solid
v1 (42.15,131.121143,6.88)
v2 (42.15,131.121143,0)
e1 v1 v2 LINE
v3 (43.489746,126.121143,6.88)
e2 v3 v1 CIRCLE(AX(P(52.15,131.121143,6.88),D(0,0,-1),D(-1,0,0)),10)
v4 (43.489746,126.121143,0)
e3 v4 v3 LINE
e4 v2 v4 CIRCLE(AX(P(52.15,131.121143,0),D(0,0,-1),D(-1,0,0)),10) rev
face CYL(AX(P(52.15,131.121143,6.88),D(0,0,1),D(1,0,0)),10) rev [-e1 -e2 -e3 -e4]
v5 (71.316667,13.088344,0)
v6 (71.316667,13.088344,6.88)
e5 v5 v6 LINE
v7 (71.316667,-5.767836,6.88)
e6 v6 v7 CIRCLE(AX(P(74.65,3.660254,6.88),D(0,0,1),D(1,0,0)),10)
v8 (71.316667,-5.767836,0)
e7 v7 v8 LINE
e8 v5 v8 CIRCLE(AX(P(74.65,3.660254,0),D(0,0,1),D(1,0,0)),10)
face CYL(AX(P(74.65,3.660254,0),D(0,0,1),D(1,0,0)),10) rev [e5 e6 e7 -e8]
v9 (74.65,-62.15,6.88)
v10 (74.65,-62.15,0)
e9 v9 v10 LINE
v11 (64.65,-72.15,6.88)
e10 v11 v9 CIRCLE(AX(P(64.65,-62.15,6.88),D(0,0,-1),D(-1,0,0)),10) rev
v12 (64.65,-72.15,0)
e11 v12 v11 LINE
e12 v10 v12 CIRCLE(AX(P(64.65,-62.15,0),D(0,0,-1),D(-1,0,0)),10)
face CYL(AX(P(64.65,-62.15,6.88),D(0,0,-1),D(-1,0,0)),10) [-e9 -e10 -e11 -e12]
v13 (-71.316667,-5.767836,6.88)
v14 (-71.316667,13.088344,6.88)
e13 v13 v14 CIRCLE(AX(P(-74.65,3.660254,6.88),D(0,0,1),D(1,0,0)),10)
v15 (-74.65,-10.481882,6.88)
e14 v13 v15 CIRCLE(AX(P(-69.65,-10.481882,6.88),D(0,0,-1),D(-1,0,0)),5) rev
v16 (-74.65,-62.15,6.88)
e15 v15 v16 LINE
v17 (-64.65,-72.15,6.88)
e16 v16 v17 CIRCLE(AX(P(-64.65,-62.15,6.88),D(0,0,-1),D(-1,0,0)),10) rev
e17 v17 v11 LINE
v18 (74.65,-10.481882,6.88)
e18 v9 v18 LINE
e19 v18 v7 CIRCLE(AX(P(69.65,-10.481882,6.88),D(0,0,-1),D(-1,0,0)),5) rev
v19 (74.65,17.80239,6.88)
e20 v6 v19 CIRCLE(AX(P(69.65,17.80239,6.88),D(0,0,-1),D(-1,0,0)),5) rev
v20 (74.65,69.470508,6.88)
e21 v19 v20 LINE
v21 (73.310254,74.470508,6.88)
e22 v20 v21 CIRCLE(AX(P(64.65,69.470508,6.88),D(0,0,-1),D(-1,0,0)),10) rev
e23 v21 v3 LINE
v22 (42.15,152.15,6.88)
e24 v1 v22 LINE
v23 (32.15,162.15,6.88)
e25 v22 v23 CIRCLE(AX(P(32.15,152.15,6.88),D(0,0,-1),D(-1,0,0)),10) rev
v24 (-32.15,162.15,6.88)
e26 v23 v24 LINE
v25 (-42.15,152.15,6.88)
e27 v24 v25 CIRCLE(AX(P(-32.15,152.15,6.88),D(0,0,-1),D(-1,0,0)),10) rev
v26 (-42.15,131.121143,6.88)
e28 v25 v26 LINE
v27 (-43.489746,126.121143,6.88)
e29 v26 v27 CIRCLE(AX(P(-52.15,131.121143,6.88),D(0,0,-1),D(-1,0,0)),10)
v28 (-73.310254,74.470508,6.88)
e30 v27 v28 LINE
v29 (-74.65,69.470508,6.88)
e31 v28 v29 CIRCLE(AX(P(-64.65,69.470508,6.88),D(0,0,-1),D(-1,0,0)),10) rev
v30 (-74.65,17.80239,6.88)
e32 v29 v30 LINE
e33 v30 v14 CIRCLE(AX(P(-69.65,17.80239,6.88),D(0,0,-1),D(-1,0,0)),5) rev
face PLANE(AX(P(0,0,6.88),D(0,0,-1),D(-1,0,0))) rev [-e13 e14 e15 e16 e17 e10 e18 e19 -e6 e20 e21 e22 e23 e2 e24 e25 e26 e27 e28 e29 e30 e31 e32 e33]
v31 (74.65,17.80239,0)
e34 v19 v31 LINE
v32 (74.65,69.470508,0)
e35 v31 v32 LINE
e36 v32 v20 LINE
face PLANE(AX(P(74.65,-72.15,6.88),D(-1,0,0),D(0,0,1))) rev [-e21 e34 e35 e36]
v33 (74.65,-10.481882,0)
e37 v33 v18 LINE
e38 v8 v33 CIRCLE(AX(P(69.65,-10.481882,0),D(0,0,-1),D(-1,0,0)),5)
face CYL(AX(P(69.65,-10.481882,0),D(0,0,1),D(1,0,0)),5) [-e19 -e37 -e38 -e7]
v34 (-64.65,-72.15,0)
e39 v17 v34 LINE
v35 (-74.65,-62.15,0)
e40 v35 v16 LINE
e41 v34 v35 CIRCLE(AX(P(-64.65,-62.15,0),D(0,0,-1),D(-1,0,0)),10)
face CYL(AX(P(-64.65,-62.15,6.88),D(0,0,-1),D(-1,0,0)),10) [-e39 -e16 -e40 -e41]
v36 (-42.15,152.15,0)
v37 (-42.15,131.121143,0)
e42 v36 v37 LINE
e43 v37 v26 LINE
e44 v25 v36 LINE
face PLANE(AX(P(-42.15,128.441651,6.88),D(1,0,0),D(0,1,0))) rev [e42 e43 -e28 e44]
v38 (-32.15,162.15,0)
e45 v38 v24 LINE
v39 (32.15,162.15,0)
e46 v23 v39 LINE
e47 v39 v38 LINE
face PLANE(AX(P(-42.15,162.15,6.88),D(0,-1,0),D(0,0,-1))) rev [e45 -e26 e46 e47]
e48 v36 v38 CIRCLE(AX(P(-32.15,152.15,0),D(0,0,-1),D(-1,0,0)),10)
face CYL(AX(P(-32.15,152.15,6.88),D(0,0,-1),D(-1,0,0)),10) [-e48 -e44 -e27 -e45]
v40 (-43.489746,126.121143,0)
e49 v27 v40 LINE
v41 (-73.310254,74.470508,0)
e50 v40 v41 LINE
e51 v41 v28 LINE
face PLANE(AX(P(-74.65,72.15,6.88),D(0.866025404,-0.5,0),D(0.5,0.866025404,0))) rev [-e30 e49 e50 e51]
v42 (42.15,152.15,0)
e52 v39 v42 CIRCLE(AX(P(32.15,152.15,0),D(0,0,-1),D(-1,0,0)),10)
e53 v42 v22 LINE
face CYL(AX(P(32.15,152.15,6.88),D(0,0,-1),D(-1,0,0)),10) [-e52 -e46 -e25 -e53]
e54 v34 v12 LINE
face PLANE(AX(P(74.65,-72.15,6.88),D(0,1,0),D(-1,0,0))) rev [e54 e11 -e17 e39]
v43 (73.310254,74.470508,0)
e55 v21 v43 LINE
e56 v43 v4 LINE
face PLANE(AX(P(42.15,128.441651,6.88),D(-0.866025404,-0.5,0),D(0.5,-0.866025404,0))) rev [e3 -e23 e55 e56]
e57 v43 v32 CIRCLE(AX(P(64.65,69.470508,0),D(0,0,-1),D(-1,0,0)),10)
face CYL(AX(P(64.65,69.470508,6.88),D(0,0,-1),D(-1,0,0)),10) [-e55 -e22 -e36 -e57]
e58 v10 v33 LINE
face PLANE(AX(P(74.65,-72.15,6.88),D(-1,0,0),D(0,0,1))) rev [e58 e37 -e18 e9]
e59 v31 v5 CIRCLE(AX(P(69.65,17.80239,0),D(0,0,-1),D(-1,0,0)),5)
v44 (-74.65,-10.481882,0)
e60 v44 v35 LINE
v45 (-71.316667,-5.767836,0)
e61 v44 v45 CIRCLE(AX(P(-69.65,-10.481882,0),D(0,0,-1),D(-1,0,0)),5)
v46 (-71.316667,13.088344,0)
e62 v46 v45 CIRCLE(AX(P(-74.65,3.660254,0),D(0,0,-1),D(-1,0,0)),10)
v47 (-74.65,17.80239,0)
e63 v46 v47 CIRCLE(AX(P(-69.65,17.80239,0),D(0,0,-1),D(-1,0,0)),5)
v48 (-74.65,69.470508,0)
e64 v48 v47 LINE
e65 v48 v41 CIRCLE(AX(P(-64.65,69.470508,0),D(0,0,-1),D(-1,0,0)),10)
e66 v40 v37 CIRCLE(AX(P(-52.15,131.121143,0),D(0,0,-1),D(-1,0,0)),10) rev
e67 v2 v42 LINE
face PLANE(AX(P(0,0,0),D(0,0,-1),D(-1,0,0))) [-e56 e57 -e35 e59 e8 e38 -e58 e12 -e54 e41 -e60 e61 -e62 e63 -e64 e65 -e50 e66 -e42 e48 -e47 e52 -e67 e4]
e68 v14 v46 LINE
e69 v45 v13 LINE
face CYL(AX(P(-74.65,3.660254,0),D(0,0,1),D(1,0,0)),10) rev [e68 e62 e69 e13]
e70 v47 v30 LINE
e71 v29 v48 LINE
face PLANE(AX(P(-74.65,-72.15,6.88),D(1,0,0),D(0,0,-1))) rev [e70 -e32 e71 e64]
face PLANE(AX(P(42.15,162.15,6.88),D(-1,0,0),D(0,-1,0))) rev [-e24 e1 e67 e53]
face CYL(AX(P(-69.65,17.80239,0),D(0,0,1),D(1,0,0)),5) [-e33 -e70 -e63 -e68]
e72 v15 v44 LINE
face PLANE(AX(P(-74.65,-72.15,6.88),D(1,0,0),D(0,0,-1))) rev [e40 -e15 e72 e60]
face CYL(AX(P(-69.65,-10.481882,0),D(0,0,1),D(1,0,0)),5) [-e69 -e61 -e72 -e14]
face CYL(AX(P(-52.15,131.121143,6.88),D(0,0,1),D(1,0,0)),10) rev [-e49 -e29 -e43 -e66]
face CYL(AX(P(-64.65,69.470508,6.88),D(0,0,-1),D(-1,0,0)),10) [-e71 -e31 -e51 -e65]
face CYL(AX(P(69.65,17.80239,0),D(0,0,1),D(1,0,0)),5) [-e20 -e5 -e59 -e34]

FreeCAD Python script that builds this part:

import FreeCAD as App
import Part
import Sketcher
from FreeCAD import Vector
Q = App.Units.Quantity


def edges_at(feature, points):
    """Names of the edges that pass closest to the given points."""
    edges = feature.Shape.Edges
    near = lambda p: min(range(len(edges)), key=lambda i: edges[i].distToShape(Part.Vertex(*p))[0])
    return sorted({f"Edge{near(p) + 1}" for p in points})


def add_polygon(sketch, points):
    """Adds a closed chain of lines whose ends are joined by coincident constraints."""
    first, n = sketch.GeometryCount, len(points)
    for a, b in zip(points, points[1:] + points[:1]):
        sketch.addGeometry(Part.LineSegment(App.Vector(*a, 0), App.Vector(*b, 0)), False)
    for i in range(n):
        sketch.addConstraint(Sketcher.Constraint("Coincident", first + i, 2, first + (i + 1) % n, 1))

doc = App.newDocument("Part")
body = doc.addObject("PartDesign::Body", "Body")

sketch1 = doc.addObject("Sketcher::SketchObject", "Sketch")
body.addObject(sketch1)
sketch1.AttachmentSupport = (doc.XY_Plane, [""])
sketch1.MapMode = "FlatFace"
add_polygon(sketch1, [(-42, 128), (-75, 72), (-75, -72), (75, -72), (75, 72), (42, 128), (42, 162), (-42, 162)])
sketch1.addConstraint(Sketcher.Constraint("Vertical", 1))
sketch1.addConstraint(Sketcher.Constraint("Horizontal", 2))
sketch1.addConstraint(Sketcher.Constraint("Vertical", 3))
sketch1.addConstraint(Sketcher.Constraint("Vertical", 5))
sketch1.addConstraint(Sketcher.Constraint("Horizontal", 6))
sketch1.addConstraint(Sketcher.Constraint("Vertical", 7))
sketch1.addConstraint(Sketcher.Constraint("Symmetric", 0, 2, 2, 2, -1, 1))
sketch1.addConstraint(Sketcher.Constraint("Symmetric", 4, 2, 7, 2, -2))
sketch1.addConstraint(Sketcher.Constraint("Horizontal", 0, 2, 3, 2))
sketch1.addConstraint(Sketcher.Constraint("Angle", 0, Q("-120 deg")))
sketch1.addConstraint(Sketcher.Constraint("Distance", 0, 65.0))
sketch1.addConstraint(Sketcher.Constraint("DistanceX", 2, 1, 2, 2, 149.3))
sketch1.addConstraint(Sketcher.Constraint("DistanceY", 1, 2, 1, 1, 144.3))
sketch1.addConstraint(Sketcher.Constraint("DistanceY", 3, 2, 5, 2, 90.0))
pad1 = doc.addObject("PartDesign::Pad", "Pad")
body.addObject(pad1)
pad1.Profile = sketch1
pad1.Length = 6.88
doc.recompute()

fillet = doc.addObject("PartDesign::Fillet", "Fillet")
body.addObject(fillet)
fillet.Base = (pad1, edges_at(pad1, [
    (-74.65, 72.15, 3.44),
    (-42.15, 128.442, 3.44),
    (-42.15, 162.15, 3.44),
    (42.15, 162.15, 3.44),
    (42.15, 128.442, 3.44),
    (74.65, 72.15, 3.44),
    (74.65, -72.15, 3.44),
    (-74.65, -72.15, 3.44),
]))
fillet.Radius = 10

sketch2 = doc.addObject("Sketcher::SketchObject", "Sketch001")
body.addObject(sketch2)
sketch2.AttachmentSupport = (doc.XY_Plane, [""])
sketch2.MapMode = "FlatFace"
sketch2.AttachmentOffset = App.Placement(Vector(0, 0, 6.88), App.Rotation())
sketch2.addGeometry(Part.Circle(Vector(-75, 4, 0), Vector(0, 0, 1), 10), False)
sketch2.addGeometry(Part.Circle(Vector(75, 4, 0), Vector(0, 0, 1), 10), False)
sketch2.addConstraint(Sketcher.Constraint("Equal", 0, 1))
sketch2.addConstraint(Sketcher.Constraint("Symmetric", 0, 3, 1, 3, -2))
sketch2.addConstraint(Sketcher.Constraint("Diameter", 0, 20.0))
sketch2.addConstraint(Sketcher.Constraint("DistanceX", 0, 3, 1, 3, 149.3))
sketch2.addConstraint(Sketcher.Constraint("DistanceY", -1, 1, 0, 3, 3.660254))
pocket1 = doc.addObject("PartDesign::Pocket", "Pocket")
body.addObject(pocket1)
pocket1.Profile = sketch2
pocket1.Type = "ThroughAll"
doc.recompute()

fillet2 = doc.addObject("PartDesign::Fillet", "Fillet001")
body.addObject(fillet2)
fillet2.Base = (pocket1, edges_at(pocket1, [
    (-74.65, 13.66, 3.44),
    (-74.65, -6.34, 3.44),
    (74.65, -6.34, 3.44),
    (74.65, 13.66, 3.44),
]))
fillet2.Radius = 5

doc.recompute()
